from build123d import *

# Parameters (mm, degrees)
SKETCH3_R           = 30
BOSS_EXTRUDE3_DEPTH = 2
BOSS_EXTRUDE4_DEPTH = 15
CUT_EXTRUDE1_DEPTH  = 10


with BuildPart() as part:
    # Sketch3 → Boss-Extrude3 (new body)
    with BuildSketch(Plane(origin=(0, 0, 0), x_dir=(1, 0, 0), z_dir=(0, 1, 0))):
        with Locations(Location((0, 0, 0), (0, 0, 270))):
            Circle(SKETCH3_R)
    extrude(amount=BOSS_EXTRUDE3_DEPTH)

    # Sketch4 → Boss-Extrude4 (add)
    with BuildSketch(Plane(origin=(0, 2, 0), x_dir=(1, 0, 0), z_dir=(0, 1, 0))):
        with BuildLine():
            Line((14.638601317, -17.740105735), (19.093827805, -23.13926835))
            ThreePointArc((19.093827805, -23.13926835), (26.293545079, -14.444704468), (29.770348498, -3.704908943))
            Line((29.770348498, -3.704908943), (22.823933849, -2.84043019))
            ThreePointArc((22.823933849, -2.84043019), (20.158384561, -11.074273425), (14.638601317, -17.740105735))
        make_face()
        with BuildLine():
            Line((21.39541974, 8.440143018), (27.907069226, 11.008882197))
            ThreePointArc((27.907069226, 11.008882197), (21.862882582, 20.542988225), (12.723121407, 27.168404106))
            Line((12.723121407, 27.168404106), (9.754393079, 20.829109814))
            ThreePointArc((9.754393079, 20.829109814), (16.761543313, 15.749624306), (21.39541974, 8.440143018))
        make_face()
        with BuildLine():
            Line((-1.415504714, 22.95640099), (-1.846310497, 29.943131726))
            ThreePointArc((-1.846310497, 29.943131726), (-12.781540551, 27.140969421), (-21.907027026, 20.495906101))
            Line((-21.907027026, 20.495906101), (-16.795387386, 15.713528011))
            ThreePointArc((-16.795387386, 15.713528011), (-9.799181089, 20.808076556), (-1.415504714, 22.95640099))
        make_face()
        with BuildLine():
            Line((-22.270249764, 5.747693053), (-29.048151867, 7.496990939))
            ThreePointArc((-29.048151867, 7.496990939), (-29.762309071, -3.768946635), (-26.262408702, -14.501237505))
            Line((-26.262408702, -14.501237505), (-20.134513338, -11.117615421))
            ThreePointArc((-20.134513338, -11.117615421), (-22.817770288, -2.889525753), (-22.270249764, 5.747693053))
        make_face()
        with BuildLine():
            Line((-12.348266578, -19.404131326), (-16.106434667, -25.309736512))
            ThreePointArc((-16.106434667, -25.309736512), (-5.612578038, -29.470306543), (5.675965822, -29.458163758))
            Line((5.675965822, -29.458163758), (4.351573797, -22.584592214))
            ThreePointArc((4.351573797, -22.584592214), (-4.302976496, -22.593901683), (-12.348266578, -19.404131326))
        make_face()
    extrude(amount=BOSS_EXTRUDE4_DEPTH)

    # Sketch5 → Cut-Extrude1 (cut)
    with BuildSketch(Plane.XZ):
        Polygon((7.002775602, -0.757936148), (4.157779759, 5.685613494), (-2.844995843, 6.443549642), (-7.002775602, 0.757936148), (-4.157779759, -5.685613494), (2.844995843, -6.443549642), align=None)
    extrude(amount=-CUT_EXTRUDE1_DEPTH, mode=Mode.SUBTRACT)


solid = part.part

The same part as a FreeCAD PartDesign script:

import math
import FreeCAD as App
import Part
import Sketcher
from FreeCAD import Vector

doc = App.newDocument("Part")
body = doc.addObject("PartDesign::Body", "Body")

sketch1 = body.newObject("Sketcher::SketchObject", "Sketch")
sketch1.AttachmentSupport = (doc.getObject("XZ_Plane"), [""])
sketch1.MapMode = "FlatFace"
sketch1.addGeometry(Part.Circle(Vector(0, 0, 0), Vector(0, 0, 1), 30), False)
sketch1.addConstraint(Sketcher.Constraint("Coincident", 0, 3, -1, 1))
sketch1.addConstraint(Sketcher.Constraint("Diameter", 0, 60.0))
pad1 = body.newObject("PartDesign::Pad", "Pad")
pad1.Profile = sketch1
pad1.Length = 2
pad1.Reversed = True

sketch2 = body.newObject("Sketcher::SketchObject", "Sketch001")
sketch2.AttachmentSupport = (doc.getObject("XZ_Plane"), [""])
sketch2.MapMode = "FlatFace"
sketch2.AttachmentOffset = App.Placement(Vector(0, 0, -2), App.Rotation())
sketch2.addGeometry(Part.LineSegment(Vector(15, 18, 0), Vector(19, 23, 0)), False)
sketch2.addGeometry(Part.ArcOfCircle(Part.Circle(Vector(0, 0, 0), Vector(0, 0, 1), 30), math.radians(7), math.radians(50)), False)
sketch2.addGeometry(Part.LineSegment(Vector(30, 4, 0), Vector(23, 3, 0)), False)
sketch2.addGeometry(Part.ArcOfCircle(Part.Circle(Vector(0, 0, 0), Vector(0, 0, 1), 23), math.radians(7), math.radians(50)), False)
sketch2.addGeometry(Part.LineSegment(Vector(21, -8, 0), Vector(28, -11, 0)), False)
sketch2.addGeometry(Part.ArcOfCircle(Part.Circle(Vector(0, 0, 0), Vector(0, 0, 1), 30), math.radians(-65), math.radians(-22)), False)
sketch2.addGeometry(Part.LineSegment(Vector(13, -27, 0), Vector(10, -21, 0)), False)
sketch2.addGeometry(Part.ArcOfCircle(Part.Circle(Vector(0, 0, 0), Vector(0, 0, 1), 23), math.radians(-65), math.radians(-22)), False)
sketch2.addGeometry(Part.LineSegment(Vector(-1, -23, 0), Vector(-2, -30, 0)), False)
sketch2.addGeometry(Part.ArcOfCircle(Part.Circle(Vector(0, 0, 0), Vector(0, 0, 1), 30), math.radians(-137), math.radians(-94)), False)
sketch2.addGeometry(Part.LineSegment(Vector(-22, -20, 0), Vector(-17, -16, 0)), False)
sketch2.addGeometry(Part.ArcOfCircle(Part.Circle(Vector(0, 0, 0), Vector(0, 0, 1), 23), math.radians(-137), math.radians(-94)), False)
sketch2.addGeometry(Part.LineSegment(Vector(-22, -6, 0), Vector(-29, -7, 0)), False)
sketch2.addGeometry(Part.ArcOfCircle(Part.Circle(Vector(0, 0, 0), Vector(0, 0, 1), 30), math.radians(151), math.radians(194)), False)
sketch2.addGeometry(Part.LineSegment(Vector(-26, 15, 0), Vector(-20, 11, 0)), False)
sketch2.addGeometry(Part.ArcOfCircle(Part.Circle(Vector(0, 0, 0), Vector(0, 0, 1), 23), math.radians(151), math.radians(194)), False)
sketch2.addGeometry(Part.LineSegment(Vector(-12, 19, 0), Vector(-16, 25, 0)), False)
sketch2.addGeometry(Part.ArcOfCircle(Part.Circle(Vector(0, 0, 0), Vector(0, 0, 1), 30), math.radians(79), math.radians(122)), False)
sketch2.addGeometry(Part.LineSegment(Vector(6, 29, 0), Vector(4, 23, 0)), False)
sketch2.addGeometry(Part.ArcOfCircle(Part.Circle(Vector(0, 0, 0), Vector(0, 0, 1), 23), math.radians(79), math.radians(122)), False)
sketch2.addConstraint(Sketcher.Constraint("Coincident", 0, 2, 1, 2))
sketch2.addConstraint(Sketcher.Constraint("Coincident", 1, 1, 2, 1))
sketch2.addConstraint(Sketcher.Constraint("Coincident", 2, 2, 3, 1))
sketch2.addConstraint(Sketcher.Constraint("Coincident", 3, 2, 0, 1))
sketch2.addConstraint(Sketcher.Constraint("Coincident", 4, 2, 5, 2))
sketch2.addConstraint(Sketcher.Constraint("Coincident", 5, 1, 6, 1))
sketch2.addConstraint(Sketcher.Constraint("Coincident", 6, 2, 7, 1))
sketch2.addConstraint(Sketcher.Constraint("Coincident", 7, 2, 4, 1))
sketch2.addConstraint(Sketcher.Constraint("Coincident", 8, 2, 9, 2))
sketch2.addConstraint(Sketcher.Constraint("Coincident", 9, 1, 10, 1))
sketch2.addConstraint(Sketcher.Constraint("Coincident", 10, 2, 11, 1))
sketch2.addConstraint(Sketcher.Constraint("Coincident", 11, 2, 8, 1))
sketch2.addConstraint(Sketcher.Constraint("Coincident", 12, 2, 13, 2))
sketch2.addConstraint(Sketcher.Constraint("Coincident", 13, 1, 14, 1))
sketch2.addConstraint(Sketcher.Constraint("Coincident", 14, 2, 15, 1))
sketch2.addConstraint(Sketcher.Constraint("Coincident", 15, 2, 12, 1))
sketch2.addConstraint(Sketcher.Constraint("Coincident", 16, 2, 17, 2))
sketch2.addConstraint(Sketcher.Constraint("Coincident", 17, 1, 18, 1))
sketch2.addConstraint(Sketcher.Constraint("Coincident", 18, 2, 19, 1))
sketch2.addConstraint(Sketcher.Constraint("Coincident", 19, 2, 16, 1))
sketch2.addConstraint(Sketcher.Constraint("Coincident", 1, 3, -1, 1))
sketch2.addConstraint(Sketcher.Constraint("Coincident", 3, 3, -1, 1))
sketch2.addConstraint(Sketcher.Constraint("Coincident", 5, 3, -1, 1))
sketch2.addConstraint(Sketcher.Constraint("Coincident", 7, 3, -1, 1))
sketch2.addConstraint(Sketcher.Constraint("Coincident", 9, 3, -1, 1))
sketch2.addConstraint(Sketcher.Constraint("Coincident", 11, 3, -1, 1))
sketch2.addConstraint(Sketcher.Constraint("Coincident", 13, 3, -1, 1))
sketch2.addConstraint(Sketcher.Constraint("Coincident", 15, 3, -1, 1))
sketch2.addConstraint(Sketcher.Constraint("Coincident", 17, 3, -1, 1))
sketch2.addConstraint(Sketcher.Constraint("Coincident", 19, 3, -1, 1))
sketch2.addConstraint(Sketcher.Constraint("Equal", 1, 5))
sketch2.addConstraint(Sketcher.Constraint("Equal", 3, 7))
sketch2.addConstraint(Sketcher.Constraint("Equal", 5, 9))
sketch2.addConstraint(Sketcher.Constraint("Equal", 7, 11))
sketch2.addConstraint(Sketcher.Constraint("Equal", 9, 13))
sketch2.addConstraint(Sketcher.Constraint("Equal", 11, 15))
sketch2.addConstraint(Sketcher.Constraint("Equal", 13, 17))
sketch2.addConstraint(Sketcher.Constraint("Equal", 15, 19))
sketch2.addConstraint(Sketcher.Constraint("Radius", 1, 30.0))
sketch2.addConstraint(Sketcher.Constraint("Radius", 3, 23.0))
sketch2.addConstraint(Sketcher.Constraint("DistanceX", -1, 1, 3, 2, 14.638601))
sketch2.addConstraint(Sketcher.Constraint("DistanceY", 11, 2, -1, 1, 22.956401))
sketch2.addConstraint(Sketcher.Constraint("DistanceX", 5, 1, 7, 2, 8.672298))
sketch2.addConstraint(Sketcher.Constraint("DistanceY", 13, 1, 16, 2, 10.808499))
sketch2.addConstraint(Sketcher.Constraint("DistanceX", 16, 2, 17, 1, 21.7824))
sketch2.addConstraint(Sketcher.Constraint("DistanceY", -1, 1, 0, 2, 23.139268))
sketch2.addConstraint(Sketcher.Constraint("DistanceX", -1, 1, 1, 1, 29.770348))
sketch2.addConstraint(Sketcher.Constraint("DistanceY", -1, 1, 2, 2, 2.84043))
sketch2.addConstraint(Sketcher.Constraint("DistanceX", -1, 1, 4, 2, 27.907069))
sketch2.addConstraint(Sketcher.Constraint("DistanceX", -1, 1, 5, 1, 12.723121))
sketch2.addConstraint(Sketcher.Constraint("DistanceY", 6, 2, -1, 1, 20.82911))
sketch2.addConstraint(Sketcher.Constraint("DistanceX", 8, 2, -1, 1, 1.84631))
sketch2.addConstraint(Sketcher.Constraint("DistanceY", 10, 2, -1, 1, 15.713528))
sketch2.addConstraint(Sketcher.Constraint("DistanceX", 12, 2, -1, 1, 29.048152))
sketch2.addConstraint(Sketcher.Constraint("DistanceX", 13, 1, -1, 1, 26.262409))
sketch2.addConstraint(Sketcher.Constraint("DistanceX", 15, 2, -1, 1, 22.27025))
sketch2.addConstraint(Sketcher.Constraint("DistanceY", -1, 1, 19, 2, 19.404131))
sketch2.addConstraint(Sketcher.Constraint("DistanceX", 9, 1, 10, 2, 5.11164))
sketch2.addConstraint(Sketcher.Constraint("DistanceX", 12, 2, 14, 2, 8.913639))
sketch2.addConstraint(Sketcher.Constraint("DistanceY", 18, 2, 17, 1, 6.873572))
pad2 = body.newObject("PartDesign::Pad", "Pad001")
pad2.Profile = sketch2
pad2.Length = 15
pad2.Reversed = True

sketch3 = body.newObject("Sketcher::SketchObject", "Sketch002")
sketch3.AttachmentSupport = (doc.getObject("XZ_Plane"), [""])
sketch3.MapMode = "FlatFace"
sketch3.addGeometry(Part.LineSegment(Vector(7, -1, 0), Vector(4, 6, 0)), False)
sketch3.addGeometry(Part.LineSegment(Vector(4, 6, 0), Vector(-3, 6, 0)), False)
sketch3.addGeometry(Part.LineSegment(Vector(-3, 6, 0), Vector(-7, 1, 0)), False)
sketch3.addGeometry(Part.LineSegment(Vector(-7, 1, 0), Vector(-4, -6, 0)), False)
sketch3.addGeometry(Part.LineSegment(Vector(-4, -6, 0), Vector(3, -6, 0)), False)
sketch3.addGeometry(Part.LineSegment(Vector(3, -6, 0), Vector(7, -1, 0)), False)
sketch3.addConstraint(Sketcher.Constraint("Coincident", 0, 2, 1, 1))
sketch3.addConstraint(Sketcher.Constraint("Coincident", 1, 2, 2, 1))
sketch3.addConstraint(Sketcher.Constraint("Coincident", 2, 2, 3, 1))
sketch3.addConstraint(Sketcher.Constraint("Coincident", 3, 2, 4, 1))
sketch3.addConstraint(Sketcher.Constraint("Coincident", 4, 2, 5, 1))
sketch3.addConstraint(Sketcher.Constraint("Coincident", 5, 2, 0, 1))
sketch3.addConstraint(Sketcher.Constraint("Symmetric", 0, 2, 3, 2, -1, 1))
sketch3.addConstraint(Sketcher.Constraint("Symmetric", 1, 2, 4, 2, -1, 1))
sketch3.addConstraint(Sketcher.Constraint("Symmetric", 2, 2, 5, 2, -1, 1))
sketch3.addConstraint(Sketcher.Constraint("Equal", 0, 1))
sketch3.addConstraint(Sketcher.Constraint("Equal", 1, 2))
sketch3.addConstraint(Sketcher.Constraint("DistanceY", 4, 2, 1, 2, 12.887099))
sketch3.addConstraint(Sketcher.Constraint("DistanceX", -1, 1, 0, 2, 4.15778))
sketch3.addConstraint(Sketcher.Constraint("DistanceX", 2, 2, 1, 2, 4.15778))
sketch3.addConstraint(Sketcher.Constraint("DistanceY", 3, 2, 2, 2, 6.44355))
pocket1 = body.newObject("PartDesign::Pocket", "Pocket")
pocket1.Profile = sketch3
pocket1.Length = 10

doc.recompute()
